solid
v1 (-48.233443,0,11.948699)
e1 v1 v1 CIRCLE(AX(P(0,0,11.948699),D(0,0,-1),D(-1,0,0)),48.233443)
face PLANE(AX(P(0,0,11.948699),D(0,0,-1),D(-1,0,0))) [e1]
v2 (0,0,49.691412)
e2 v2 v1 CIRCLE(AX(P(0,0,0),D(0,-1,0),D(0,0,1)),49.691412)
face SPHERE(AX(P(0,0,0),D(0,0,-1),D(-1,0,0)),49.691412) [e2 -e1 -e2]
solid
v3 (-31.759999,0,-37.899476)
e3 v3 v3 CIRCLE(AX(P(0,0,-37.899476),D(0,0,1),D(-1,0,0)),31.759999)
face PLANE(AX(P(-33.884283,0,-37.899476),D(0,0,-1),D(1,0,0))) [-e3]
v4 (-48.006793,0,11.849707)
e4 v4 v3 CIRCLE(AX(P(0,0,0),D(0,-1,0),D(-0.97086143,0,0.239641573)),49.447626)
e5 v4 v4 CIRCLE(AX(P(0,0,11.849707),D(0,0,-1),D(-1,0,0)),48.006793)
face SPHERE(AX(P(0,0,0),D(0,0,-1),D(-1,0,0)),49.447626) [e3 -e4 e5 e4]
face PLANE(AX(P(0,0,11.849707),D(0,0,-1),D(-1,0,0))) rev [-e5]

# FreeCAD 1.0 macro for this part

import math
import FreeCAD as App
import Part
import Sketcher

V = App.Vector
Q = App.Units.Quantity

doc = App.newDocument("Part")
body = doc.addObject("PartDesign::Body", "Body")

sketch1 = doc.addObject("Sketcher::SketchObject", "Sketch")
body.addObject(sketch1)
sketch1.AttachmentSupport = (doc.XZ_Plane, [""])
sketch1.MapMode = "FlatFace"
sketch1.addGeometry(Part.LineSegment(V(0, 12, 0), V(0, 50, 0)), False)
sketch1.addGeometry(Part.ArcOfCircle(Part.Circle(V(0, 0, 0), V(0, 0, 1), 50), math.radians(90), math.radians(166)), False)
sketch1.addGeometry(Part.LineSegment(V(-48, 12, 0), V(0, 12, 0)), False)
sketch1.addConstraint(Sketcher.Constraint("Coincident", 0, 2, 1, 1))
sketch1.addConstraint(Sketcher.Constraint("Coincident", 1, 2, 2, 1))
sketch1.addConstraint(Sketcher.Constraint("Coincident", 2, 2, 0, 1))
sketch1.addConstraint(Sketcher.Constraint("Vertical", 0))
sketch1.addConstraint(Sketcher.Constraint("Horizontal", 2))
sketch1.addConstraint(Sketcher.Constraint("Coincident", 1, 3, -1, 1))
sketch1.addConstraint(Sketcher.Constraint("PointOnObject", 0, 2, -2))
sketch1.addConstraint(Sketcher.Constraint("Radius", 1, Q("49.691412 mm")))
sketch1.addConstraint(Sketcher.Constraint("DistanceY", -1, 1, 1, 2, Q("11.948699 mm")))
revolution = doc.addObject("PartDesign::Revolution", "Revolution")
body.addObject(revolution)
revolution.Profile = sketch1
revolution.ReferenceAxis = (sketch1, ["V_Axis"])
revolution.Angle = 360
body2 = doc.addObject("PartDesign::Body", "Body001")

sketch2 = doc.addObject("Sketcher::SketchObject", "Sketch001")
body2.addObject(sketch2)
sketch2.AttachmentSupport = (doc.getObject("XZ_Plane001"), [""])
sketch2.MapMode = "FlatFace"
sketch2.addGeometry(Part.ArcOfCircle(Part.Circle(V(0, 0, 0), V(0, 0, 1), 49), math.radians(166), math.radians(270)), False)
sketch2.addGeometry(Part.LineSegment(V(0, -49, 0), V(0, 12, 0)), False)
sketch2.addGeometry(Part.LineSegment(V(0, 12, 0), V(-48, 12, 0)), False)
sketch2.addConstraint(Sketcher.Constraint("Coincident", 0, 2, 1, 1))
sketch2.addConstraint(Sketcher.Constraint("Coincident", 1, 2, 2, 1))
sketch2.addConstraint(Sketcher.Constraint("Coincident", 2, 2, 0, 1))
sketch2.addConstraint(Sketcher.Constraint("Vertical", 1))
sketch2.addConstraint(Sketcher.Constraint("Horizontal", 2))
sketch2.addConstraint(Sketcher.Constraint("Coincident", 0, 3, -1, 1))
sketch2.addConstraint(Sketcher.Constraint("PointOnObject", 0, 2, -2))
sketch2.addConstraint(Sketcher.Constraint("Radius", 0, Q("49.447626 mm")))
sketch2.addConstraint(Sketcher.Constraint("DistanceX", 2, 2, 2, 1, Q("48.006793 mm")))
revolution2 = doc.addObject("PartDesign::Revolution", "Revolution001")
body2.addObject(revolution2)
revolution2.Profile = sketch2
revolution2.ReferenceAxis = (sketch2, ["V_Axis"])
revolution2.Angle = 360

sketch3 = doc.addObject("Sketcher::SketchObject", "Sketch002")
body2.addObject(sketch3)
sketch3.AttachmentSupport = (doc.getObject("XZ_Plane001"), [""])
sketch3.MapMode = "FlatFace"
sketch3.addGeometry(Part.LineSegment(V(-34, -38, 0), V(-34, -55, 0)), False)
sketch3.addGeometry(Part.LineSegment(V(-34, -55, 0), V(35, -55, 0)), False)
sketch3.addGeometry(Part.LineSegment(V(35, -55, 0), V(35, -38, 0)), False)
sketch3.addGeometry(Part.LineSegment(V(35, -38, 0), V(-34, -38, 0)), False)
sketch3.addConstraint(Sketcher.Constraint("Coincident", 0, 2, 1, 1))
sketch3.addConstraint(Sketcher.Constraint("Coincident", 1, 2, 2, 1))
sketch3.addConstraint(Sketcher.Constraint("Coincident", 2, 2, 3, 1))
sketch3.addConstraint(Sketcher.Constraint("Coincident", 3, 2, 0, 1))
sketch3.addConstraint(Sketcher.Constraint("Vertical", 0))
sketch3.addConstraint(Sketcher.Constraint("Horizontal", 1))
sketch3.addConstraint(Sketcher.Constraint("Vertical", 2))
sketch3.addConstraint(Sketcher.Constraint("Horizontal", 3))
sketch3.addConstraint(Sketcher.Constraint("DistanceX", 1, 1, 1, 2, Q("68.747882 mm")))
sketch3.addConstraint(Sketcher.Constraint("DistanceY", 0, 2, 0, 1, Q("17.04007 mm")))
sketch3.addConstraint(Sketcher.Constraint("DistanceX", -1, 1, 1, 2, Q("34.863599 mm")))
sketch3.addConstraint(Sketcher.Constraint("DistanceY", 0, 2, -1, 1, Q("54.939546 mm")))
pocket1 = doc.addObject("PartDesign::Pocket", "Pocket")
body2.addObject(pocket1)
pocket1.Profile = sketch3
pocket1.Type = "ThroughAll"
pocket1.Midplane = True

doc.recompute()
